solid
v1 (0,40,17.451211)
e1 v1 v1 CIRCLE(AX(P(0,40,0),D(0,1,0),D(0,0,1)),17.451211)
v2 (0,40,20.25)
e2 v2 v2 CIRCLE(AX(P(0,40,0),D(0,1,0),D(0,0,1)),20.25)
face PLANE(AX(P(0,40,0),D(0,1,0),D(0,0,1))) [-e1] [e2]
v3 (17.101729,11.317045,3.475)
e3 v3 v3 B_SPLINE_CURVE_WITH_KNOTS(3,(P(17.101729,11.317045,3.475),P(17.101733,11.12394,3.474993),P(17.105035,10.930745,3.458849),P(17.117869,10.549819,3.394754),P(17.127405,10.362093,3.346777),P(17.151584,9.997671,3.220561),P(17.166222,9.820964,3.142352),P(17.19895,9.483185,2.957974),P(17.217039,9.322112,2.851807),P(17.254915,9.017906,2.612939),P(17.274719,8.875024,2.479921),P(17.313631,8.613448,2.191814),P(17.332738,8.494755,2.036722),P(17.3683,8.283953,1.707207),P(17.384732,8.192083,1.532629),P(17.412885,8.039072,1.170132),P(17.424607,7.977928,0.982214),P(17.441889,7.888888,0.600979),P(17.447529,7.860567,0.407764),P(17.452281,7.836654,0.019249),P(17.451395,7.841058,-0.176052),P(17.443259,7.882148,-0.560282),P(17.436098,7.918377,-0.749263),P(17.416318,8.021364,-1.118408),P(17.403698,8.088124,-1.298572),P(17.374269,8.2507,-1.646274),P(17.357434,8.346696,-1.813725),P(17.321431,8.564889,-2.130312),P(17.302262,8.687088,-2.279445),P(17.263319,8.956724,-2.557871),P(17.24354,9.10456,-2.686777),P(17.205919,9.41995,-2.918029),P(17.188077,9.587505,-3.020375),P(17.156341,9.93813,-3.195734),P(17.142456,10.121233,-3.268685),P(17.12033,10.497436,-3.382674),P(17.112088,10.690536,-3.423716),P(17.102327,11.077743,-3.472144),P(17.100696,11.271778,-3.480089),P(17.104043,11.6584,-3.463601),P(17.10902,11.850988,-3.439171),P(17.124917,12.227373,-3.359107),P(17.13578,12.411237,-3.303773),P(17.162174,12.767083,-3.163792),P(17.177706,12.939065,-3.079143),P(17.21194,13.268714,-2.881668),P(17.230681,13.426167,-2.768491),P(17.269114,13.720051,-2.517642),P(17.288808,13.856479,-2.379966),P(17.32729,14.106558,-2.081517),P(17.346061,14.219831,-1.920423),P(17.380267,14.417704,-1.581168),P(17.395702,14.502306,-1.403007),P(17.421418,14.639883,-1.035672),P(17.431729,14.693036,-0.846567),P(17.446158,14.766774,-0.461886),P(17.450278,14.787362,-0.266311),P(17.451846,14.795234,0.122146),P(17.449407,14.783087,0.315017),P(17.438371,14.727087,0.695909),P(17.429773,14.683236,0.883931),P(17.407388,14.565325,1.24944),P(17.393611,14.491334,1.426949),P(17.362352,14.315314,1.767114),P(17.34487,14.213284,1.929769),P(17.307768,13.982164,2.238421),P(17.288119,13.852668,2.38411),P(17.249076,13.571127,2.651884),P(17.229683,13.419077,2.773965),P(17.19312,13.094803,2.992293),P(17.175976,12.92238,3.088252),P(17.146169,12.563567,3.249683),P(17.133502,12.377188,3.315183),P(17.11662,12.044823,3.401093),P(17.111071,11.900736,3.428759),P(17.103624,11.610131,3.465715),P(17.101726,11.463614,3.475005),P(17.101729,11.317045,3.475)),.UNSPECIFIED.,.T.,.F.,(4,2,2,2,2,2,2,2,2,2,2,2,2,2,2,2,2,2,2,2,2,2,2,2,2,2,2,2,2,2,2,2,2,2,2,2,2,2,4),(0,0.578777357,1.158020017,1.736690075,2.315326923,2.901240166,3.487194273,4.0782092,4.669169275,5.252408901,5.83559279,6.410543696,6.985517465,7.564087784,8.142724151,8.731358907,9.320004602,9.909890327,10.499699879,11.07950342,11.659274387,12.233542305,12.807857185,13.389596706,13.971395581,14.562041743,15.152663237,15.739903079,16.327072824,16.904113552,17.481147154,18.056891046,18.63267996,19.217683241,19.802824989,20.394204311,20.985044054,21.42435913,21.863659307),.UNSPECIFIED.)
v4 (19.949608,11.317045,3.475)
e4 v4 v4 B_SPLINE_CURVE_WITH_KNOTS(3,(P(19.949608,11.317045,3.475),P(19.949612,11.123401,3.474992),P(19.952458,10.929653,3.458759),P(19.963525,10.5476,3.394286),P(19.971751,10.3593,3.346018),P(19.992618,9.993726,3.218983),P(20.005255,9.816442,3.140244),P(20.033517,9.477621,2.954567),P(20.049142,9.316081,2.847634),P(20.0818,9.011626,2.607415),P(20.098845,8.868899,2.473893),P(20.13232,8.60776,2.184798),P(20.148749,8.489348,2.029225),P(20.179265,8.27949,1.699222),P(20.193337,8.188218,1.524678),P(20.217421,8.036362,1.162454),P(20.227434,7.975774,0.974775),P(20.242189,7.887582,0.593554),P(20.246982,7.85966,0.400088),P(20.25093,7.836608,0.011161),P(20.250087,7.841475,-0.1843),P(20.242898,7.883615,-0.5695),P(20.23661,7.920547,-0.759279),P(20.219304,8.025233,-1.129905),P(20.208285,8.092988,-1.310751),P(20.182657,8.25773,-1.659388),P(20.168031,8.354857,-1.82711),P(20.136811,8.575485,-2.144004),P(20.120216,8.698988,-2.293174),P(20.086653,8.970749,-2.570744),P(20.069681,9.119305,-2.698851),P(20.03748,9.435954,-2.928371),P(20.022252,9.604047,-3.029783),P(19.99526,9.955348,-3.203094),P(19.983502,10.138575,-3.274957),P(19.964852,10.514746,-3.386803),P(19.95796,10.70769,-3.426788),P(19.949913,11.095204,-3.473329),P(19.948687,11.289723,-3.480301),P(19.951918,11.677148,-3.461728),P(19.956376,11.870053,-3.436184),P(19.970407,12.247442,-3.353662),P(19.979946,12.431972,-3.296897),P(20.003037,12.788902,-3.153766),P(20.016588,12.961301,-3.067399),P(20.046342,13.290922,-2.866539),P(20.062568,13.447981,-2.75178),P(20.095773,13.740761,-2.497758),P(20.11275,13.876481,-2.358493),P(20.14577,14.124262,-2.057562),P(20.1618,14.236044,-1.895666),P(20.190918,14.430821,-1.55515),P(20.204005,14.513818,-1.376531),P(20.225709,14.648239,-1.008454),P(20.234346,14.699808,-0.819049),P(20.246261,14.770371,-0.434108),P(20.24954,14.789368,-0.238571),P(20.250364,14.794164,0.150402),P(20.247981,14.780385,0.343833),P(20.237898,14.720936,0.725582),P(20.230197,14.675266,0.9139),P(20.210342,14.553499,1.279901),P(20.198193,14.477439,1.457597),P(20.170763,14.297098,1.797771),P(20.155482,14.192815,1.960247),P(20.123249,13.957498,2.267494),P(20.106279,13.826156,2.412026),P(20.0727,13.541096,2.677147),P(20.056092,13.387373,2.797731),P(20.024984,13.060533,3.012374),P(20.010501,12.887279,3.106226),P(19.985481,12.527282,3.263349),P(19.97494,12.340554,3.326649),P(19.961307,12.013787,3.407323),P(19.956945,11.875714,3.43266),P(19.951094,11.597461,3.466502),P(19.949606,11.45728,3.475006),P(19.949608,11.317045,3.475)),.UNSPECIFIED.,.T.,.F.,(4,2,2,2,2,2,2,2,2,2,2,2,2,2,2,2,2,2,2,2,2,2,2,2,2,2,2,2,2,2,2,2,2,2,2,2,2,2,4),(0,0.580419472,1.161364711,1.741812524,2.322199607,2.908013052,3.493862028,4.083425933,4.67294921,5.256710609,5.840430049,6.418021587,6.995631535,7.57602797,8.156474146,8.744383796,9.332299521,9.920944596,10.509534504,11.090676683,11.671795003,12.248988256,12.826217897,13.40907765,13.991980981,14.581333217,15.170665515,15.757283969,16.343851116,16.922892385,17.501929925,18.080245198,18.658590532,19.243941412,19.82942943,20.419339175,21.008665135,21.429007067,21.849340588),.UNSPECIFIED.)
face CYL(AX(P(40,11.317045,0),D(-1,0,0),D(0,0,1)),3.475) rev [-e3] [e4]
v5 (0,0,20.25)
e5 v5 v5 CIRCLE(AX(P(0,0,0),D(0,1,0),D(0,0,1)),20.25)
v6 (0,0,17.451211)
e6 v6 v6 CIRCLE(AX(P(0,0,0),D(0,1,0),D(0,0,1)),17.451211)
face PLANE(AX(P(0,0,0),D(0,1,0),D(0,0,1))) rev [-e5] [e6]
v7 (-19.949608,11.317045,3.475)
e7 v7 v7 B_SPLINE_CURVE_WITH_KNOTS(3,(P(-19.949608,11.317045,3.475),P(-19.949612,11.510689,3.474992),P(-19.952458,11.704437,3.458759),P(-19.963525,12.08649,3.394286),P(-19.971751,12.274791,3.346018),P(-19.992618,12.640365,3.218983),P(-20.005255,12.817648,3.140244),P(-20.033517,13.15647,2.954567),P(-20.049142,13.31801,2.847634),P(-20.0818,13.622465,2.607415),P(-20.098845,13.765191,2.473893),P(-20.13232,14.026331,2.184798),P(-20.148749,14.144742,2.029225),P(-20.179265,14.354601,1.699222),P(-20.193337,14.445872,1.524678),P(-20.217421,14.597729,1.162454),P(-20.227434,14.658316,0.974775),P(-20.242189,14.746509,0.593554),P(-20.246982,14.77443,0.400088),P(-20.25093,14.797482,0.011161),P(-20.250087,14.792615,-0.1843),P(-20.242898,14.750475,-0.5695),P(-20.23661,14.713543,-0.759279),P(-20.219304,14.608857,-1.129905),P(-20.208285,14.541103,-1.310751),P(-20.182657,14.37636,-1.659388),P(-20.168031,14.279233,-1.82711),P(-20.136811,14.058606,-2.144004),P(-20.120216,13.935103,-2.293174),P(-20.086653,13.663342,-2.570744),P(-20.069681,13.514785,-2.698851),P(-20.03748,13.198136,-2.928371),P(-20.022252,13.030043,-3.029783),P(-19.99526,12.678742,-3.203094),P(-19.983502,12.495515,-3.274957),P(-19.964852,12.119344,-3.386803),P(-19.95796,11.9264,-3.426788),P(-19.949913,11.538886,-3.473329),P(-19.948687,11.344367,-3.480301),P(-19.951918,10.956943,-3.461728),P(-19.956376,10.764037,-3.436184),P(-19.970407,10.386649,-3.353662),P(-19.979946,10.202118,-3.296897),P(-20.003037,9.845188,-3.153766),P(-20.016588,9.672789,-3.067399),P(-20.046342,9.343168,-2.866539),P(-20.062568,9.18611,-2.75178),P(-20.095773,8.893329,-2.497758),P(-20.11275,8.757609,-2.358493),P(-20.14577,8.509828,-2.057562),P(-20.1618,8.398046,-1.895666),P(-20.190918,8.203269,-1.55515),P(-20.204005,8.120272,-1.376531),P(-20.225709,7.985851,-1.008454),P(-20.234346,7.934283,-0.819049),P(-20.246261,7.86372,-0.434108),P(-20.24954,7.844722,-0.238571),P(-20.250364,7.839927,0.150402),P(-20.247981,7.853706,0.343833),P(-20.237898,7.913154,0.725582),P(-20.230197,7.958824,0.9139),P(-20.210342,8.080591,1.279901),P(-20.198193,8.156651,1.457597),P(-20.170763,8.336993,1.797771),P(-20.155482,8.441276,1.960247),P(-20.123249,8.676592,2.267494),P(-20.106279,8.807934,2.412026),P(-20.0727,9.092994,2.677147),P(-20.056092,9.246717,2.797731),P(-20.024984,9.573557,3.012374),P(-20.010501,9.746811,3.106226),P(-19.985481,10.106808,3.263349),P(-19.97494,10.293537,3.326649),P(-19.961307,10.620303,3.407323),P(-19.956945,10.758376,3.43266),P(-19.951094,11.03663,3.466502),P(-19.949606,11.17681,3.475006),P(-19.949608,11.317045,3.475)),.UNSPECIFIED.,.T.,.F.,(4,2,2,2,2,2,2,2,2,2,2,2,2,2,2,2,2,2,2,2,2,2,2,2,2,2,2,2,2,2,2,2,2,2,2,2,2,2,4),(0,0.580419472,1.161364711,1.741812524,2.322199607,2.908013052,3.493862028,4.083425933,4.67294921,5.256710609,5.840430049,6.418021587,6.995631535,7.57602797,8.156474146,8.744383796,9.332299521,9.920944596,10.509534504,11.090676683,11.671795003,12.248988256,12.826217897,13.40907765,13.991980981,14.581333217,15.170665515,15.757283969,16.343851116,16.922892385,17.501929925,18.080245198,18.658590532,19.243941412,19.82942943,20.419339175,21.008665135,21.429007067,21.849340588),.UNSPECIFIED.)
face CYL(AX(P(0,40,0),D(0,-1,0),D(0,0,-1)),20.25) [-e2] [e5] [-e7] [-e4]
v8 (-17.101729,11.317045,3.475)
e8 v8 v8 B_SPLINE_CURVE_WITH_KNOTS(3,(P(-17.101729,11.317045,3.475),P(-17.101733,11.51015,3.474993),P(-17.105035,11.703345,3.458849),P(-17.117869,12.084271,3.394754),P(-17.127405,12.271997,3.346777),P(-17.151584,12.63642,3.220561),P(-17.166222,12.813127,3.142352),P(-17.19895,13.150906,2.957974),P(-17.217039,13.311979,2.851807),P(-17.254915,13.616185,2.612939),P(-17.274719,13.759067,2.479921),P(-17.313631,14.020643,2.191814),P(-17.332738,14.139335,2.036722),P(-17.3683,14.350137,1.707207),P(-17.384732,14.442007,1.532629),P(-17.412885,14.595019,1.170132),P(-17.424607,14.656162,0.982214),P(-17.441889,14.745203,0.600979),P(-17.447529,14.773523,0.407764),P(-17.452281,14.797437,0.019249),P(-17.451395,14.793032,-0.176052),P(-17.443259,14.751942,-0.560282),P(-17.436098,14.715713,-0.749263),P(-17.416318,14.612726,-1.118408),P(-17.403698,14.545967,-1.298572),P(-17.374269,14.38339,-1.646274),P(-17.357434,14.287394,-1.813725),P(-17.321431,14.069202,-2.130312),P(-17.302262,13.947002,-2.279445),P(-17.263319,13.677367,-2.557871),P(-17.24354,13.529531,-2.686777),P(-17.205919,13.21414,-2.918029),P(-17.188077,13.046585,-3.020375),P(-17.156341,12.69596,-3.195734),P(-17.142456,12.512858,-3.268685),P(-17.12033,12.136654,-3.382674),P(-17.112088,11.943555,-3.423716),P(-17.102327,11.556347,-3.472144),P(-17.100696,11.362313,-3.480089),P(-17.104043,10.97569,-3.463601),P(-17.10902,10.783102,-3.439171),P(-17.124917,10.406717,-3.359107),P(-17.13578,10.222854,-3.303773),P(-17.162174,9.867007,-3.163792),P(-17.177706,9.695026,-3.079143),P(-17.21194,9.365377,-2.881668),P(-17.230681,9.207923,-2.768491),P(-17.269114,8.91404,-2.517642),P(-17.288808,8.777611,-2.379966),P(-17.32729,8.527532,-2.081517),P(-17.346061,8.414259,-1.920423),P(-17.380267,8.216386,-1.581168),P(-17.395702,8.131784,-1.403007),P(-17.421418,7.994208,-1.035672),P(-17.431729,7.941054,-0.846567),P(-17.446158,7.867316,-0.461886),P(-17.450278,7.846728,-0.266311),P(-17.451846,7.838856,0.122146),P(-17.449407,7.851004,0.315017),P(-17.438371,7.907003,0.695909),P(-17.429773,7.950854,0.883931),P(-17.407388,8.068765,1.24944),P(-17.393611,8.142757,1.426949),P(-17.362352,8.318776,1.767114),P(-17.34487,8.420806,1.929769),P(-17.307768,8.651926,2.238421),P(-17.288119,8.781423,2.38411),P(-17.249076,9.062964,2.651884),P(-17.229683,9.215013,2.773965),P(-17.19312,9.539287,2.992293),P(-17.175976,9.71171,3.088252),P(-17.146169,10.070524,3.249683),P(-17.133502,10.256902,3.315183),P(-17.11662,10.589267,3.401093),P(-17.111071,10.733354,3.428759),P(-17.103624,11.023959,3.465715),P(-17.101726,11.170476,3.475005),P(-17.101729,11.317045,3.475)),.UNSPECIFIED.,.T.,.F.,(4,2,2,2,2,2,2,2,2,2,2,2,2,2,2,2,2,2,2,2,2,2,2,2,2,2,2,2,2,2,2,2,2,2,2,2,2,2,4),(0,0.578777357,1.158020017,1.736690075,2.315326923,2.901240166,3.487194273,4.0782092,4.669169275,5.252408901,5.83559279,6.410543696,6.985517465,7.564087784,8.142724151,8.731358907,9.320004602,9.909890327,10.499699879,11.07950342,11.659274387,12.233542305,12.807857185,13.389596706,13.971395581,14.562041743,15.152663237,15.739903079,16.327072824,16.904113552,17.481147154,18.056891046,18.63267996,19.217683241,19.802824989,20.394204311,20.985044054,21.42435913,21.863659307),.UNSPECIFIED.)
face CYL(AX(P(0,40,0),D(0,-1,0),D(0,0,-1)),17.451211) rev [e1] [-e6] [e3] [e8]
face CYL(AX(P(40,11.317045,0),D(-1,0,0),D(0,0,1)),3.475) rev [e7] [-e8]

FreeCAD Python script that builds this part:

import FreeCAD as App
import Part
import Sketcher

doc = App.newDocument("Part")
body = doc.addObject("PartDesign::Body", "Body")

sketch1 = body.newObject("Sketcher::SketchObject", "Sketch")
sketch1.AttachmentSupport = (doc.getObject("XZ_Plane"), [""])
sketch1.MapMode = "FlatFace"
sketch1.addGeometry([
    Part.Circle(App.Vector(0, 0, 0), App.Vector(0, 0, 1), 20.25),
    Part.Circle(App.Vector(0, 0, 0), App.Vector(0, 0, 1), 17.451211),
], False)
sketch1.addConstraint([
    Sketcher.Constraint("Coincident", 0, 3, -1, 1),
    Sketcher.Constraint("Coincident", 1, 3, -1, 1),
    Sketcher.Constraint("Diameter", 0, 40.5),
    Sketcher.Constraint("Diameter", 1, 34.902422),
])
pad1 = body.newObject("PartDesign::Pad", "Pad")
pad1.Profile = sketch1
pad1.Length = 40
pad1.Reversed = True

sketch2 = body.newObject("Sketcher::SketchObject", "Sketch001")
sketch2.AttachmentSupport = (doc.getObject("YZ_Plane"), [""])
sketch2.MapMode = "FlatFace"
sketch2.addGeometry(Part.Circle(App.Vector(11.317045, 0, 0), App.Vector(0, 0, 1), 3.475), False)
sketch2.addConstraint([
    Sketcher.Constraint("PointOnObject", 0, 3, -1),
    Sketcher.Constraint("Diameter", 0, 6.95),
    Sketcher.Constraint("DistanceX", -1, 1, 0, 3, 11.317045),
])
pocket1 = body.newObject("PartDesign::Pocket", "Pocket")
pocket1.Profile = sketch2
pocket1.Type = "ThroughAll"
pocket1.Midplane = True

doc.recompute()
